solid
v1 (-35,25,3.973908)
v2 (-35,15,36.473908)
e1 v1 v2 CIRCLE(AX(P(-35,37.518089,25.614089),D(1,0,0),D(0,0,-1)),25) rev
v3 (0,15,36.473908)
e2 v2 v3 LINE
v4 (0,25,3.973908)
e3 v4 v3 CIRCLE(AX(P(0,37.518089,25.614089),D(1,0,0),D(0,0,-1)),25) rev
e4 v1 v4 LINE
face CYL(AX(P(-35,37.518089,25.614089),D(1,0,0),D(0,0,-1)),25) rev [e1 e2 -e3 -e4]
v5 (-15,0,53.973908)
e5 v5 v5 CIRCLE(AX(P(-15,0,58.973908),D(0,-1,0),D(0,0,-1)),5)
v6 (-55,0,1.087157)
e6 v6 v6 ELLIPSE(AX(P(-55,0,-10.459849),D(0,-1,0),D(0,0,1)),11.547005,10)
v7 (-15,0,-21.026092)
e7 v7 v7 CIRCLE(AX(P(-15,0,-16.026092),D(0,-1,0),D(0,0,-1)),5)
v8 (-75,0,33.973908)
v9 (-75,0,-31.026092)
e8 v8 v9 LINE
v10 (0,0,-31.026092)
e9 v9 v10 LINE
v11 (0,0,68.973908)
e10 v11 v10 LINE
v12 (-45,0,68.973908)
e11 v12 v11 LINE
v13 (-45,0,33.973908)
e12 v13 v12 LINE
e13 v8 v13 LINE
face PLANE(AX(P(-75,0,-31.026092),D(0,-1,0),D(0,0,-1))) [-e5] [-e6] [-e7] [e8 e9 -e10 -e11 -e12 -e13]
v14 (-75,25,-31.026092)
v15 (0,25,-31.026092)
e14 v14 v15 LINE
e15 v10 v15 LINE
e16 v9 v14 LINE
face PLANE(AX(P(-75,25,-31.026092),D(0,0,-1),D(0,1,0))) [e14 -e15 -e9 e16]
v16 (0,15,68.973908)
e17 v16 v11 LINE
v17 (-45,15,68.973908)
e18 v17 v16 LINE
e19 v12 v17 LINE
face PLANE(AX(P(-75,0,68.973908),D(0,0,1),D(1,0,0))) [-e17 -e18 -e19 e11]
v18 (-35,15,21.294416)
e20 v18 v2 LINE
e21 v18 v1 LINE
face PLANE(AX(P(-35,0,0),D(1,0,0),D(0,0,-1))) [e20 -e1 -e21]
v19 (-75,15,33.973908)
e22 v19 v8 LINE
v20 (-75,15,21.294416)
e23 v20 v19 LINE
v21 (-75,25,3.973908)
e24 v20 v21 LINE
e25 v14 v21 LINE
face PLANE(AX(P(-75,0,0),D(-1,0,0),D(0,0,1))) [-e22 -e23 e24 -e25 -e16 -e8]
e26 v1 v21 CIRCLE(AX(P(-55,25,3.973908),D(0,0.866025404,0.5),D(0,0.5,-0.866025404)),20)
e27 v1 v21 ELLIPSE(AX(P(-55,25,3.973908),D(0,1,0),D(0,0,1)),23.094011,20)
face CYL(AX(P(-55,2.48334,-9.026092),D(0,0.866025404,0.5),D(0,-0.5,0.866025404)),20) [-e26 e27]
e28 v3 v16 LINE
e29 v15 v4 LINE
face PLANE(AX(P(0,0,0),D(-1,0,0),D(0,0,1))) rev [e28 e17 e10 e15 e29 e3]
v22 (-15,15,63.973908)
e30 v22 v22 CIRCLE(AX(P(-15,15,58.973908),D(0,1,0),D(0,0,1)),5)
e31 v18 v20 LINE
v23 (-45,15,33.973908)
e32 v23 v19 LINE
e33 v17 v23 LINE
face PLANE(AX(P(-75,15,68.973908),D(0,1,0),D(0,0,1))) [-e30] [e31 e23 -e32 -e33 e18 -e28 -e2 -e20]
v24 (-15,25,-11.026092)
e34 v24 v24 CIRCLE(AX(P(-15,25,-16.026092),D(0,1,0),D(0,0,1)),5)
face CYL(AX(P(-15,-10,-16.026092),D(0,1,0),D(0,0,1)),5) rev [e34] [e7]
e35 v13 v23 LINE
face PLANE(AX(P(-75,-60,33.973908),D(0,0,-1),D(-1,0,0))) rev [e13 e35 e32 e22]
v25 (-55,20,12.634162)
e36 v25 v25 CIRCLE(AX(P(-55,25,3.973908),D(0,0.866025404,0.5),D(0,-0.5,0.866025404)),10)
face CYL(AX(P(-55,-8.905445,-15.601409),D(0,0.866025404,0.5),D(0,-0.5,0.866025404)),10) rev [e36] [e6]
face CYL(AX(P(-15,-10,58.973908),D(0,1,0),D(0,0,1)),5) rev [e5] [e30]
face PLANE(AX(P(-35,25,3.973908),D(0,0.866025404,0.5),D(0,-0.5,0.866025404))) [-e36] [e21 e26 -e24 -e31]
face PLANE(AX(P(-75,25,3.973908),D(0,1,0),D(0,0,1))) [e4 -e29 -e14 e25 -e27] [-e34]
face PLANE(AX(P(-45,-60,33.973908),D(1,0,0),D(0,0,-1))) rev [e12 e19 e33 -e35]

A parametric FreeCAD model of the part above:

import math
import FreeCAD as App
import Part
import Sketcher
from FreeCAD import Vector
Q = App.Units.Quantity

doc = App.newDocument("Part")
body = doc.addObject("PartDesign::Body", "Body")

# Sketch on YZ plane
sketch1 = body.newObject("Sketcher::SketchObject", "Sketch")
sketch1.AttachmentSupport = (doc.getObject("YZ_Plane"), [""])
sketch1.MapMode = "FlatFace"
sketch1.addGeometry([
    Part.LineSegment(Vector(15, 69, 0), Vector(0, 69, 0)),  # 0
    Part.LineSegment(Vector(0, 69, 0), Vector(0, -31, 0)),  # 1
    Part.LineSegment(Vector(0, -31, 0), Vector(25, -31, 0)),  # 2
    Part.LineSegment(Vector(25, -31, 0), Vector(25, 4, 0)),  # 3
    Part.LineSegment(Vector(25, 4, 0), Vector(15, 4, 0)),  # 4
    Part.LineSegment(Vector(15, 4, 0), Vector(15, 69, 0)),  # 5
], False)
sketch1.addConstraint([
    Sketcher.Constraint("Coincident", 0, 2, 1, 1),
    Sketcher.Constraint("Coincident", 1, 2, 2, 1),
    Sketcher.Constraint("Coincident", 2, 2, 3, 1),
    Sketcher.Constraint("Coincident", 3, 2, 4, 1),
    Sketcher.Constraint("Coincident", 4, 2, 5, 1),
    Sketcher.Constraint("Coincident", 5, 2, 0, 1),
    Sketcher.Constraint("Horizontal", 0),
    Sketcher.Constraint("Vertical", 1),
    Sketcher.Constraint("Horizontal", 2),
    Sketcher.Constraint("Vertical", 3),
    Sketcher.Constraint("Horizontal", 4),
    Sketcher.Constraint("Vertical", 5),
    Sketcher.Constraint("PointOnObject", 0, 2, -2),
    Sketcher.Constraint("DistanceX", 0, 2, 0, 1, Q("15 mm")),
    Sketcher.Constraint("DistanceX", 2, 1, 2, 2, Q("25 mm")),
    Sketcher.Constraint("DistanceY", 1, 2, 1, 1, Q("100 mm")),
    Sketcher.Constraint("DistanceY", 3, 1, 3, 2, Q("35 mm")),
    Sketcher.Constraint("DistanceY", -1, 1, 0, 2, Q("68.973908 mm")),
])
pad1 = body.newObject("PartDesign::Pad", "Pad")
pad1.Profile = sketch1
pad1.Length = 75
pad1.Reversed = True

# Sketch on XZ plane
sketch2 = body.newObject("Sketcher::SketchObject", "Sketch001")
sketch2.AttachmentSupport = (doc.getObject("XZ_Plane"), [""])
sketch2.MapMode = "FlatFace"
sketch2.AttachmentOffset = App.Placement(Vector(0, 0, -15), App.Rotation())
sketch2.addGeometry([
    Part.LineSegment(Vector(-75, 34, 0), Vector(-75, 69, 0)),
    Part.LineSegment(Vector(-75, 69, 0), Vector(-45, 69, 0)),
    Part.LineSegment(Vector(-45, 69, 0), Vector(-45, 34, 0)),
    Part.LineSegment(Vector(-45, 34, 0), Vector(-75, 34, 0)),
], False)
sketch2.addConstraint([
    Sketcher.Constraint("Coincident", 0, 2, 1, 1),
    Sketcher.Constraint("Coincident", 1, 2, 2, 1),
    Sketcher.Constraint("Coincident", 2, 2, 3, 1),
    Sketcher.Constraint("Coincident", 3, 2, 0, 1),
    Sketcher.Constraint("Vertical", 0),
    Sketcher.Constraint("Horizontal", 1),
    Sketcher.Constraint("Vertical", 2),
    Sketcher.Constraint("Horizontal", 3),
    Sketcher.Constraint("DistanceX", 1, 1, 1, 2, Q("30 mm")),
    Sketcher.Constraint("DistanceY", 0, 1, 0, 2, Q("35 mm")),
    Sketcher.Constraint("DistanceX", 0, 2, -1, 1, Q("75 mm")),
    Sketcher.Constraint("DistanceY", -1, 1, 0, 2, Q("68.973908 mm")),
])
pocket1 = body.newObject("PartDesign::Pocket", "Pocket")
pocket1.Profile = sketch2
pocket1.Length = 75
pocket1.Reversed = True

# Sketch on YZ plane
sketch3 = body.newObject("Sketcher::SketchObject", "Sketch002")
sketch3.AttachmentSupport = (doc.getObject("YZ_Plane"), [""])
sketch3.MapMode = "FlatFace"
sketch3.AttachmentOffset = App.Placement(Vector(0, 0, -75), App.Rotation())
sketch3.addGeometry([
    Part.LineSegment(Vector(15, 21, 0), Vector(25, 4, 0)),
    Part.LineSegment(Vector(25, 4, 0), Vector(15, 4, 0)),
    Part.LineSegment(Vector(15, 4, 0), Vector(15, 21, 0)),
], False)
sketch3.addConstraint([
    Sketcher.Constraint("Coincident", 0, 2, 1, 1),
    Sketcher.Constraint("Coincident", 1, 2, 2, 1),
    Sketcher.Constraint("Coincident", 2, 2, 0, 1),
    Sketcher.Constraint("Horizontal", 1),
    Sketcher.Constraint("Vertical", 2),
    Sketcher.Constraint("DistanceX", 1, 2, 1, 1, Q("10 mm")),
    Sketcher.Constraint("Angle", 0, Q("-60 deg")),
    Sketcher.Constraint("DistanceX", -1, 1, 0, 2, Q("25 mm")),
    Sketcher.Constraint("DistanceY", -1, 1, 0, 2, Q("3.973908 mm")),
])
pad2 = body.newObject("PartDesign::Pad", "Pad001")
pad2.Profile = sketch3
pad2.Length = 40

# Sketch on an angled plane
sketch4 = body.newObject("Sketcher::SketchObject", "Sketch003")
sketch4.Placement = App.Placement(Vector(0, 20.470753, 11.818795), App.Rotation(Vector(1, 0, 0), Vector(0, 0.5, -0.866025404), Vector(0, 0.866025404, 0.5), "ZXY"))
sketch4.addGeometry([
    Part.LineSegment(Vector(-75, 9, 0), Vector(-35, 9, 0)),
    Part.ArcOfCircle(Part.Circle(Vector(-55, 9, 0), Vector(0, 0, 1), 20), math.radians(0), math.radians(180)),
], False)
sketch4.addConstraint([
    Sketcher.Constraint("Coincident", 0, 1, 1, 2),
    Sketcher.Constraint("Coincident", 1, 1, 0, 2),
    Sketcher.Constraint("Horizontal", 0),
    Sketcher.Constraint("Horizontal", 1, 3, 0, 1),
    Sketcher.Constraint("Radius", 1, Q("20 mm")),
    Sketcher.Constraint("DistanceX", 1, 3, -1, 1, Q("55 mm")),
    Sketcher.Constraint("DistanceY", -1, 1, 1, 3, Q("9.058495 mm")),
])
pad3 = body.newObject("PartDesign::Pad", "Pad002")
pad3.Profile = sketch4
pad3.Length = 26
pad3.Reversed = True

# Sketch on an angled plane
sketch5 = body.newObject("Sketcher::SketchObject", "Sketch004")
sketch5.Placement = App.Placement(Vector(0, 20.470753, 11.818795), App.Rotation(Vector(1, 0, 0), Vector(0, 0.5, -0.866025404), Vector(0, 0.866025404, 0.5), "ZXY"))
sketch5.addGeometry(Part.Circle(Vector(-55, 9, 0), Vector(0, 0, 1), 10), False)
sketch5.addConstraint([
    Sketcher.Constraint("Diameter", 0, Q("20 mm")),
    Sketcher.Constraint("DistanceX", 0, 3, -1, 1, Q("55 mm")),
    Sketcher.Constraint("DistanceY", -1, 1, 0, 3, Q("9.058495 mm")),
])
pocket2 = body.newObject("PartDesign::Pocket", "Pocket001")
pocket2.Profile = sketch5
pocket2.Type = "ThroughAll"

# Sketch on YZ plane
sketch6 = body.newObject("Sketcher::SketchObject", "Sketch005")
sketch6.AttachmentSupport = (doc.getObject("YZ_Plane"), [""])
sketch6.MapMode = "FlatFace"
sketch6.addGeometry([
    Part.LineSegment(Vector(15, 21, 0), Vector(15, 4, 0)),
    Part.LineSegment(Vector(15, 4, 0), Vector(25, 4, 0)),
    Part.LineSegment(Vector(25, 4, 0), Vector(15, 21, 0)),
], False)
sketch6.addConstraint([
    Sketcher.Constraint("Coincident", 0, 2, 1, 1),
    Sketcher.Constraint("Coincident", 1, 2, 2, 1),
    Sketcher.Constraint("Coincident", 2, 2, 0, 1),
    Sketcher.Constraint("Vertical", 0),
    Sketcher.Constraint("Horizontal", 1),
    Sketcher.Constraint("DistanceX", 1, 1, 1, 2, Q("10 mm")),
    Sketcher.Constraint("Angle", 2, Q("120 deg")),
    Sketcher.Constraint("DistanceX", -1, 1, 0, 2, Q("15 mm")),
    Sketcher.Constraint("DistanceY", -1, 1, 0, 2, Q("3.973908 mm")),
])
pad4 = body.newObject("PartDesign::Pad", "Pad003")
pad4.Profile = sketch6
pad4.Length = 37
pad4.Reversed = True

# Sketch on YZ plane
sketch7 = body.newObject("Sketcher::SketchObject", "Sketch006")
sketch7.AttachmentSupport = (doc.getObject("YZ_Plane"), [""])
sketch7.MapMode = "FlatFace"
sketch7.addGeometry([
    Part.ArcOfCircle(Part.Circle(Vector(38, 26, 0), Vector(0, 0, 1), 25), math.radians(-154), math.radians(-120)),
    Part.LineSegment(Vector(25, 4, 0), Vector(15, 21, 0)),
    Part.LineSegment(Vector(15, 21, 0), Vector(15, 36, 0)),
    Part.ArcOfCircle(Part.Circle(Vector(38, 26, 0), Vector(0, 0, 1), 25), math.radians(154), math.radians(206)),
], False)
sketch7.addConstraint([
    Sketcher.Constraint("Coincident", 0, 2, 1, 1),
    Sketcher.Constraint("Coincident", 1, 2, 2, 1),
    Sketcher.Constraint("Coincident", 2, 2, 3, 1),
    Sketcher.Constraint("Tangent", 3, 2, 0, 1),
    Sketcher.Constraint("Vertical", 2),
    Sketcher.Constraint("Equal", 0, 3),
    Sketcher.Constraint("Vertical", 2, 2, 3, 2),
    Sketcher.Constraint("Radius", 0, Q("25 mm")),
    Sketcher.Constraint("Angle", 1, Q("120 deg")),
    Sketcher.Constraint("Distance", 1, Q("20 mm")),
    Sketcher.Constraint("DistanceX", -1, 1, 0, 2, Q("25 mm")),
    Sketcher.Constraint("DistanceY", 0, 2, 2, 2, Q("32.5 mm")),
    Sketcher.Constraint("DistanceY", -1, 1, 0, 3, Q("25.614089 mm")),
])
pocket3 = body.newObject("PartDesign::Pocket", "Pocket002")
pocket3.Profile = sketch7
pocket3.Length = 35

# Sketch on XZ plane
sketch8 = body.newObject("Sketcher::SketchObject", "Sketch007")
sketch8.AttachmentSupport = (doc.getObject("XZ_Plane"), [""])
sketch8.MapMode = "FlatFace"
sketch8.AttachmentOffset = App.Placement(Vector(0, 0, -25), App.Rotation())
sketch8.addGeometry([
    Part.Circle(Vector(-15, -16, 0), Vector(0, 0, 1), 5),
    Part.Circle(Vector(-15, 59, 0), Vector(0, 0, 1), 5),
], False)
sketch8.addConstraint([
    Sketcher.Constraint("Equal", 0, 1),
    Sketcher.Constraint("Vertical", 0, 3, 1, 3),
    Sketcher.Constraint("Diameter", 0, Q("10 mm")),
    Sketcher.Constraint("DistanceX", 0, 3, -1, 1, Q("15 mm")),
    Sketcher.Constraint("DistanceY", 0, 3, 1, 3, Q("75 mm")),
    Sketcher.Constraint("DistanceY", 0, 3, -1, 1, Q("16.026092 mm")),
])
pocket4 = body.newObject("PartDesign::Pocket", "Pocket003")
pocket4.Profile = sketch8
pocket4.Length = 35
pocket4.Reversed = True

doc.recompute()
